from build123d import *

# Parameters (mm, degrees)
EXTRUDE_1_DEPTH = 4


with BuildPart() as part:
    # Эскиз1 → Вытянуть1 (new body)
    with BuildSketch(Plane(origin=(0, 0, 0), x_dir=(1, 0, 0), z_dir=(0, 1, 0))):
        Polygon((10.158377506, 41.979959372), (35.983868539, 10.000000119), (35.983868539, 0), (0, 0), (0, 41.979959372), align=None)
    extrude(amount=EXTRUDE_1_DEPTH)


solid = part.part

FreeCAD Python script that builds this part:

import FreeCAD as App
import Part
import Sketcher
Q = App.Units.Quantity


def add_polygon(sketch, points):
    """Adds a closed chain of lines whose ends are joined by coincident constraints."""
    first, n = sketch.GeometryCount, len(points)
    for a, b in zip(points, points[1:] + points[:1]):
        sketch.addGeometry(Part.LineSegment(App.Vector(*a, 0), App.Vector(*b, 0)), False)
    for i in range(n):
        sketch.addConstraint(Sketcher.Constraint("Coincident", first + i, 2, first + (i + 1) % n, 1))

doc = App.newDocument("Part")
body = doc.addObject("PartDesign::Body", "Body")

# Sketch on XZ plane
sketch1 = body.newObject("Sketcher::SketchObject", "Sketch")
sketch1.AttachmentSupport = (doc.getObject("XZ_Plane"), [""])
sketch1.MapMode = "FlatFace"
add_polygon(sketch1, [(36, -10), (10, -42), (0, -42), (0, 0), (36, 0)])  # lines 0-4
sketch1.addConstraint(Sketcher.Constraint("Horizontal", 1))
sketch1.addConstraint(Sketcher.Constraint("Vertical", 2))
sketch1.addConstraint(Sketcher.Constraint("Horizontal", 3))
sketch1.addConstraint(Sketcher.Constraint("Vertical", 4))
sketch1.addConstraint(Sketcher.Constraint("Coincident", 2, 2, -1, 1))
sketch1.addConstraint(Sketcher.Constraint("DistanceY", 4, 2, 4, 1, Q("10 mm")))
sketch1.addConstraint(Sketcher.Constraint("DistanceX", 3, 1, 3, 2, Q("35.983869 mm")))
sketch1.addConstraint(Sketcher.Constraint("DistanceY", 2, 1, 2, 2, Q("41.979959 mm")))
sketch1.addConstraint(Sketcher.Constraint("Distance", 0, Q("41.105642 mm")))
pad1 = body.newObject("PartDesign::Pad", "Pad")
pad1.Profile = sketch1
pad1.Length = 4
pad1.Reversed = True

doc.recompute()
